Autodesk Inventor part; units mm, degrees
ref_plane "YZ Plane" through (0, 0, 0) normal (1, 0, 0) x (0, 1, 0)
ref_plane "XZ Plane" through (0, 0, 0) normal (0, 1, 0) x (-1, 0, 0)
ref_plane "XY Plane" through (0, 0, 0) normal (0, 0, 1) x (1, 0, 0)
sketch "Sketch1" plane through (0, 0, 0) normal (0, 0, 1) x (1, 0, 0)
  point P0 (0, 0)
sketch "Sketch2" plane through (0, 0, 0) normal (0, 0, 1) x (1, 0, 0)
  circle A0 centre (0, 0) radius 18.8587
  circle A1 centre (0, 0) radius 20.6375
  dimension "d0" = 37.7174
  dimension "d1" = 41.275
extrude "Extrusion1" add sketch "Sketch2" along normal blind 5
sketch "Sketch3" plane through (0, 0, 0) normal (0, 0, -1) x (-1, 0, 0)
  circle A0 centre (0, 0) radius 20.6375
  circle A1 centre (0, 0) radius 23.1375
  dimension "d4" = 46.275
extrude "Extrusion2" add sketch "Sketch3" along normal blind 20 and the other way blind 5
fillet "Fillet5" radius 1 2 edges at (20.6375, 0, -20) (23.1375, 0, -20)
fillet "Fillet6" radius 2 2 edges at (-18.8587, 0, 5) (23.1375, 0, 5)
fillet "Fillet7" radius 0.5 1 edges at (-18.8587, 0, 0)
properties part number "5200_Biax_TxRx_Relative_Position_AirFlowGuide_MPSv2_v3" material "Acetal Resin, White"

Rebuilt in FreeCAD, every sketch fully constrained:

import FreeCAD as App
import Part
import Sketcher


def edges_at(feature, points):
    """Names of the edges that pass closest to the given points."""
    edges = feature.Shape.Edges
    near = lambda p: min(range(len(edges)), key=lambda i: edges[i].distToShape(Part.Vertex(*p))[0])
    return sorted({f"Edge{near(p) + 1}" for p in points})

doc = App.newDocument("Part")
params = doc.addObject("Spreadsheet::Sheet", "Params")
for row, (alias, value) in enumerate([
    ("pad1_length", "5 mm"),
    ("pad2_length", "20 mm"),
    ("pad2_length2", "5 mm"),
    ("fillet_radius", "1 mm"),
    ("fillet2_radius", "2 mm"),
    ("fillet3_radius", "0.5 mm"),
], start=1):
    params.set(f"A{row}", alias)
    params.set(f"B{row}", "=" + value)
    params.setAlias(f"B{row}", alias)

body = doc.addObject("PartDesign::Body", "Body")

# Sketch on XY plane
sketch1 = doc.addObject("Sketcher::SketchObject", "Sketch")
body.addObject(sketch1)
sketch1.AttachmentSupport = (doc.XY_Plane, [""])
sketch1.MapMode = "FlatFace"
sketch1.addGeometry(Part.Circle(App.Vector(0, 0, 0), App.Vector(0, 0, 1), 20.6375), False)
sketch1.addGeometry(Part.Circle(App.Vector(0, 0, 0), App.Vector(0, 0, 1), 18.8587), False)
sketch1.addConstraint(Sketcher.Constraint("Coincident", 0, 3, -1, 1))
sketch1.addConstraint(Sketcher.Constraint("Coincident", 1, 3, -1, 1))
sketch1.addConstraint(Sketcher.Constraint("Diameter", 0, 41.275))
sketch1.addConstraint(Sketcher.Constraint("Diameter", 1, 37.7174))
pad1 = doc.addObject("PartDesign::Pad", "Pad")
body.addObject(pad1)
pad1.Profile = sketch1
pad1.setExpression("Length", "Params.pad1_length")

# Sketch on XY plane
sketch2 = doc.addObject("Sketcher::SketchObject", "Sketch001")
body.addObject(sketch2)
sketch2.AttachmentSupport = (doc.XY_Plane, [""])
sketch2.MapMode = "FlatFace"
sketch2.addGeometry(Part.Circle(App.Vector(0, 0, 0), App.Vector(0, 0, 1), 23.1375), False)
sketch2.addGeometry(Part.Circle(App.Vector(0, 0, 0), App.Vector(0, 0, 1), 20.6375), False)
sketch2.addConstraint(Sketcher.Constraint("Coincident", 0, 3, -1, 1))
sketch2.addConstraint(Sketcher.Constraint("Coincident", 1, 3, -1, 1))
sketch2.addConstraint(Sketcher.Constraint("Diameter", 0, 46.275))
sketch2.addConstraint(Sketcher.Constraint("Diameter", 1, 41.275))
pad2 = doc.addObject("PartDesign::Pad", "Pad001")
body.addObject(pad2)
pad2.Profile = sketch2
pad2.Type = "TwoLengths"
pad2.setExpression("Length", "Params.pad2_length")
pad2.setExpression("Length2", "Params.pad2_length2")
pad2.Reversed = True
doc.recompute()

fillet = doc.addObject("PartDesign::Fillet", "Fillet")
body.addObject(fillet)
fillet.Base = (pad2, edges_at(pad2, [(20.637, 0, -20), (23.137, 0, -20)]))
fillet.setExpression("Radius", "Params.fillet_radius")
doc.recompute()

fillet2 = doc.addObject("PartDesign::Fillet", "Fillet001")
body.addObject(fillet2)
fillet2.Base = (fillet, edges_at(fillet, [(-18.859, 0, 5), (23.137, 0, 5)]))
fillet2.setExpression("Radius", "Params.fillet2_radius")
doc.recompute()

fillet3 = doc.addObject("PartDesign::Fillet", "Fillet002")
body.addObject(fillet3)
fillet3.Base = (fillet2, edges_at(fillet2, [(-18.859, 0, 0)]))
fillet3.setExpression("Radius", "Params.fillet3_radius")

doc.recompute()
